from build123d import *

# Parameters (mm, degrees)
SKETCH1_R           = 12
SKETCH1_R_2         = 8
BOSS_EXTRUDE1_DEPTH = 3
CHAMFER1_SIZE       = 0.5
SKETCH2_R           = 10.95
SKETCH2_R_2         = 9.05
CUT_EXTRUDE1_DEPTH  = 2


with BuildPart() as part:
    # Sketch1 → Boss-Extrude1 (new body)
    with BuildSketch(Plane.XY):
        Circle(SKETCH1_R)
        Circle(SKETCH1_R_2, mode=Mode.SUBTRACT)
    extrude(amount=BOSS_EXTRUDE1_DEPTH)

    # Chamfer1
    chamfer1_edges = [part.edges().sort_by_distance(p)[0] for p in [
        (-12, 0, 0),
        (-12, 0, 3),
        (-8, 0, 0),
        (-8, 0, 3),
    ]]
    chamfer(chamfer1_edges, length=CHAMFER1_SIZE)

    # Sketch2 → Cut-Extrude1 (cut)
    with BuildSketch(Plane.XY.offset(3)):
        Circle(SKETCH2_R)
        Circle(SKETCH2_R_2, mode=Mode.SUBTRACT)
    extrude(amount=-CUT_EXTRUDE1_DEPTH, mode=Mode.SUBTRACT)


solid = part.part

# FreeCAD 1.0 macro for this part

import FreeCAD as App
import Part
import Sketcher
from FreeCAD import Vector
Q = App.Units.Quantity


def edges_at(feature, points):
    """Names of the edges that pass closest to the given points."""
    edges = feature.Shape.Edges
    near = lambda p: min(range(len(edges)), key=lambda i: edges[i].distToShape(Part.Vertex(*p))[0])
    return sorted({f"Edge{near(p) + 1}" for p in points})

doc = App.newDocument("Part")
body = doc.addObject("PartDesign::Body", "Body")

sketch1 = body.newObject("Sketcher::SketchObject", "Sketch")
sketch1.AttachmentSupport = (doc.getObject("XY_Plane"), [""])
sketch1.MapMode = "FlatFace"
sketch1.addGeometry([
    Part.Circle(Vector(0, 0, 0), Vector(0, 0, 1), 12),
    Part.Circle(Vector(0, 0, 0), Vector(0, 0, 1), 8),
], False)
sketch1.addConstraint([
    Sketcher.Constraint("Coincident", 0, 3, -1, 1),
    Sketcher.Constraint("Coincident", 1, 3, -1, 1),
    Sketcher.Constraint("Diameter", 0, Q("24 mm")),
    Sketcher.Constraint("Diameter", 1, Q("16 mm")),
])
pad1 = body.newObject("PartDesign::Pad", "Pad")
pad1.Profile = sketch1
pad1.Length = 3
doc.recompute()

chamfer = body.newObject("PartDesign::Chamfer", "Chamfer")
chamfer.Base = (pad1, edges_at(pad1, [
    (-12, 0, 0),
    (-12, 0, 3),
    (-8, 0, 0),
    (-8, 0, 3),
]))
chamfer.Size = 0.5

sketch2 = body.newObject("Sketcher::SketchObject", "Sketch001")
sketch2.AttachmentSupport = (doc.getObject("XY_Plane"), [""])
sketch2.MapMode = "FlatFace"
sketch2.AttachmentOffset = App.Placement(Vector(0, 0, 3), App.Rotation())
sketch2.addGeometry([
    Part.Circle(Vector(0, 0, 0), Vector(0, 0, 1), 10.95),
    Part.Circle(Vector(0, 0, 0), Vector(0, 0, 1), 9.05),
], False)
sketch2.addConstraint([
    Sketcher.Constraint("Coincident", 0, 3, -1, 1),
    Sketcher.Constraint("Coincident", 1, 3, -1, 1),
    Sketcher.Constraint("Diameter", 0, Q("21.9 mm")),
    Sketcher.Constraint("Diameter", 1, Q("18.1 mm")),
])
pocket1 = body.newObject("PartDesign::Pocket", "Pocket")
pocket1.Profile = sketch2
pocket1.Length = 2

doc.recompute()
